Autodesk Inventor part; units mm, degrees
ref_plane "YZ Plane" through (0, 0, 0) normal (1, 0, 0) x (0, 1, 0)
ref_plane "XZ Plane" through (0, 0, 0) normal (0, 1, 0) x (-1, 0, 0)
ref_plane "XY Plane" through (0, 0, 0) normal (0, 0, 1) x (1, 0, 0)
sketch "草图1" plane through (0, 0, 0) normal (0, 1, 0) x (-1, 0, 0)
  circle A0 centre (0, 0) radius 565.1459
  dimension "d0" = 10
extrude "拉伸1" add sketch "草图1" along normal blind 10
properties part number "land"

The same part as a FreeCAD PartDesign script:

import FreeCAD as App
import Part
import Sketcher
Q = App.Units.Quantity

doc = App.newDocument("Part")
body = doc.addObject("PartDesign::Body", "Body")

# Sketch on XZ plane
sketch1 = body.newObject("Sketcher::SketchObject", "Sketch")
sketch1.AttachmentSupport = (doc.getObject("XZ_Plane"), [""])
sketch1.MapMode = "FlatFace"
sketch1.addGeometry(Part.Circle(App.Vector(0, 0, 0), App.Vector(0, 0, 1), 565.1459), False)
sketch1.addConstraint(Sketcher.Constraint("Coincident", 0, 3, -1, 1))
sketch1.addConstraint(Sketcher.Constraint("Diameter", 0, Q("1130.2918 mm")))
pad1 = body.newObject("PartDesign::Pad", "Pad")
pad1.Profile = sketch1
pad1.Length = 10
pad1.Reversed = True

doc.recompute()
